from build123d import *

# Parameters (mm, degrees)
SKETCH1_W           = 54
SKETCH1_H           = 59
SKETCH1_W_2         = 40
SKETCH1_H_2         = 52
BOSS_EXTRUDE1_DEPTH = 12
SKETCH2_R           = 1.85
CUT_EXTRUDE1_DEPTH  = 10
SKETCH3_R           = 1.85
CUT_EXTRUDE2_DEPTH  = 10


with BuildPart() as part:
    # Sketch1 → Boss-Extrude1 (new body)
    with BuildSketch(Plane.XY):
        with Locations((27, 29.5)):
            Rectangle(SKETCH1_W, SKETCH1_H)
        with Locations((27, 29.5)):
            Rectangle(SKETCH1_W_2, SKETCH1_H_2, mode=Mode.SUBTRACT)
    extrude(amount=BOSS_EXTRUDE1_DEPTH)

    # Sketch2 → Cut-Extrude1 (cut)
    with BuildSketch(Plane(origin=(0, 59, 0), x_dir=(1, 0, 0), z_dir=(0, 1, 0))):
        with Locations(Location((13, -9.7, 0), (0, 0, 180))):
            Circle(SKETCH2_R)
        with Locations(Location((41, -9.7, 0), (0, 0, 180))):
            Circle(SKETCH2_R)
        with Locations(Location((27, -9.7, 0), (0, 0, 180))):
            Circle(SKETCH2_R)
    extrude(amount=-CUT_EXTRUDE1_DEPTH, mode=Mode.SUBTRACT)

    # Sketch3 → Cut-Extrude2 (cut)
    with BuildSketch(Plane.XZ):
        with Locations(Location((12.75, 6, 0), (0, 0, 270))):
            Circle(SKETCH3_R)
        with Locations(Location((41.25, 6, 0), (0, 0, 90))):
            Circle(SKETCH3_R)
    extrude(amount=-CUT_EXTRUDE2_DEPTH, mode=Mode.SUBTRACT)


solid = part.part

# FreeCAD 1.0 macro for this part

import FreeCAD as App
import Part
import Sketcher

V = App.Vector
Q = App.Units.Quantity

doc = App.newDocument("Part")
params = doc.addObject("Spreadsheet::Sheet", "Params")
for row, (alias, value) in enumerate([
    ("sketch1_width", "54 mm"),
    ("sketch1_width2", "40 mm"),
    ("sketch1_height", "59 mm"),
    ("sketch1_height2", "52 mm"),
    ("pad1_length", "12 mm"),
    ("sketch2_diameter", "3.7 mm"),
    ("pocket1_length", "10 mm"),
    ("sketch3_diameter", "3.7 mm"),
    ("pocket2_length", "10 mm"),
], start=1):
    params.set(f"A{row}", alias)
    params.set(f"B{row}", "=" + value)
    params.setAlias(f"B{row}", alias)

body = doc.addObject("PartDesign::Body", "Body")

# Sketch on XY plane
sketch1 = doc.addObject("Sketcher::SketchObject", "Sketch")
body.addObject(sketch1)
sketch1.AttachmentSupport = (doc.XY_Plane, [""])
sketch1.MapMode = "FlatFace"
sketch1.addGeometry(Part.LineSegment(V(0, 59, 0), V(0, 0, 0)), False)
sketch1.addGeometry(Part.LineSegment(V(0, 0, 0), V(54, 0, 0)), False)
sketch1.addGeometry(Part.LineSegment(V(54, 0, 0), V(54, 59, 0)), False)
sketch1.addGeometry(Part.LineSegment(V(54, 59, 0), V(0, 59, 0)), False)
sketch1.addGeometry(Part.LineSegment(V(47, 4, 0), V(7, 4, 0)), False)
sketch1.addGeometry(Part.LineSegment(V(7, 4, 0), V(7, 56, 0)), False)
sketch1.addGeometry(Part.LineSegment(V(7, 56, 0), V(47, 56, 0)), False)
sketch1.addGeometry(Part.LineSegment(V(47, 56, 0), V(47, 4, 0)), False)
sketch1.addConstraint(Sketcher.Constraint("Coincident", 0, 2, 1, 1))
sketch1.addConstraint(Sketcher.Constraint("Coincident", 1, 2, 2, 1))
sketch1.addConstraint(Sketcher.Constraint("Coincident", 2, 2, 3, 1))
sketch1.addConstraint(Sketcher.Constraint("Coincident", 3, 2, 0, 1))
sketch1.addConstraint(Sketcher.Constraint("Coincident", 4, 2, 5, 1))
sketch1.addConstraint(Sketcher.Constraint("Coincident", 5, 2, 6, 1))
sketch1.addConstraint(Sketcher.Constraint("Coincident", 6, 2, 7, 1))
sketch1.addConstraint(Sketcher.Constraint("Coincident", 7, 2, 4, 1))
sketch1.addConstraint(Sketcher.Constraint("Vertical", 0))
sketch1.addConstraint(Sketcher.Constraint("Horizontal", 1))
sketch1.addConstraint(Sketcher.Constraint("Vertical", 2))
sketch1.addConstraint(Sketcher.Constraint("Horizontal", 3))
sketch1.addConstraint(Sketcher.Constraint("Horizontal", 4))
sketch1.addConstraint(Sketcher.Constraint("Vertical", 5))
sketch1.addConstraint(Sketcher.Constraint("Horizontal", 6))
sketch1.addConstraint(Sketcher.Constraint("Vertical", 7))
sketch1.addConstraint(Sketcher.Constraint("Coincident", 0, 2, -1, 1))
sketch1.addConstraint(Sketcher.Constraint("DistanceX", 1, 1, 1, 2, Q("54 mm")))
sketch1.addConstraint(Sketcher.Constraint("DistanceX", 4, 2, 4, 1, Q("40 mm")))
sketch1.addConstraint(Sketcher.Constraint("DistanceY", 0, 2, 0, 1, Q("59 mm")))
sketch1.addConstraint(Sketcher.Constraint("DistanceY", 5, 1, 5, 2, Q("52 mm")))
sketch1.addConstraint(Sketcher.Constraint("DistanceX", -1, 1, 4, 2, Q("7 mm")))
sketch1.addConstraint(Sketcher.Constraint("DistanceY", -1, 1, 4, 2, Q("3.5 mm")))
sketch1.setExpression("Constraints[17]", "Params.sketch1_width")
sketch1.setExpression("Constraints[18]", "Params.sketch1_width2")
sketch1.setExpression("Constraints[19]", "Params.sketch1_height")
sketch1.setExpression("Constraints[20]", "Params.sketch1_height2")
pad1 = doc.addObject("PartDesign::Pad", "Pad")
body.addObject(pad1)
pad1.Profile = sketch1
pad1.setExpression("Length", "Params.pad1_length")

# Sketch on XZ plane
sketch2 = doc.addObject("Sketcher::SketchObject", "Sketch001")
body.addObject(sketch2)
sketch2.AttachmentSupport = (doc.XZ_Plane, [""])
sketch2.MapMode = "FlatFace"
sketch2.AttachmentOffset = App.Placement(V(0, 0, -59), App.Rotation())
sketch2.addGeometry(Part.Circle(V(13, 9.7, 0), V(0, 0, 1), 1.9), False)
sketch2.addGeometry(Part.Circle(V(41, 9.7, 0), V(0, 0, 1), 1.9), False)
sketch2.addGeometry(Part.Circle(V(27, 9.7, 0), V(0, 0, 1), 1.9), False)
sketch2.addConstraint(Sketcher.Constraint("Equal", 0, 1))
sketch2.addConstraint(Sketcher.Constraint("Equal", 1, 2))
sketch2.addConstraint(Sketcher.Constraint("Horizontal", 0, 3, 1, 3))
sketch2.addConstraint(Sketcher.Constraint("Horizontal", 1, 3, 2, 3))
sketch2.addConstraint(Sketcher.Constraint("Diameter", 0, Q("3.7 mm")))
sketch2.addConstraint(Sketcher.Constraint("DistanceX", -1, 1, 0, 3, Q("13 mm")))
sketch2.addConstraint(Sketcher.Constraint("DistanceX", -1, 1, 1, 3, Q("41 mm")))
sketch2.addConstraint(Sketcher.Constraint("DistanceX", -1, 1, 2, 3, Q("27 mm")))
sketch2.addConstraint(Sketcher.Constraint("DistanceY", -1, 1, 0, 3, Q("9.7 mm")))
sketch2.setExpression("Constraints[4]", "Params.sketch2_diameter")
pocket1 = doc.addObject("PartDesign::Pocket", "Pocket")
body.addObject(pocket1)
pocket1.Profile = sketch2
pocket1.setExpression("Length", "Params.pocket1_length")
pocket1.Reversed = True

# Sketch on XZ plane
sketch3 = doc.addObject("Sketcher::SketchObject", "Sketch002")
body.addObject(sketch3)
sketch3.AttachmentSupport = (doc.XZ_Plane, [""])
sketch3.MapMode = "FlatFace"
sketch3.addGeometry(Part.Circle(V(12.8, 6, 0), V(0, 0, 1), 1.9), False)
sketch3.addGeometry(Part.Circle(V(41.2, 6, 0), V(0, 0, 1), 1.9), False)
sketch3.addConstraint(Sketcher.Constraint("Equal", 0, 1))
sketch3.addConstraint(Sketcher.Constraint("Horizontal", 0, 3, 1, 3))
sketch3.addConstraint(Sketcher.Constraint("Diameter", 0, Q("3.7 mm")))
sketch3.addConstraint(Sketcher.Constraint("DistanceY", -1, 1, 0, 3, Q("6 mm")))
sketch3.addConstraint(Sketcher.Constraint("DistanceX", 0, 3, 1, 3, Q("28.5 mm")))
sketch3.addConstraint(Sketcher.Constraint("DistanceX", -1, 1, 0, 3, Q("12.75 mm")))
sketch3.setExpression("Constraints[2]", "Params.sketch3_diameter")
pocket2 = doc.addObject("PartDesign::Pocket", "Pocket001")
body.addObject(pocket2)
pocket2.Profile = sketch3
pocket2.setExpression("Length", "Params.pocket2_length")

doc.recompute()
